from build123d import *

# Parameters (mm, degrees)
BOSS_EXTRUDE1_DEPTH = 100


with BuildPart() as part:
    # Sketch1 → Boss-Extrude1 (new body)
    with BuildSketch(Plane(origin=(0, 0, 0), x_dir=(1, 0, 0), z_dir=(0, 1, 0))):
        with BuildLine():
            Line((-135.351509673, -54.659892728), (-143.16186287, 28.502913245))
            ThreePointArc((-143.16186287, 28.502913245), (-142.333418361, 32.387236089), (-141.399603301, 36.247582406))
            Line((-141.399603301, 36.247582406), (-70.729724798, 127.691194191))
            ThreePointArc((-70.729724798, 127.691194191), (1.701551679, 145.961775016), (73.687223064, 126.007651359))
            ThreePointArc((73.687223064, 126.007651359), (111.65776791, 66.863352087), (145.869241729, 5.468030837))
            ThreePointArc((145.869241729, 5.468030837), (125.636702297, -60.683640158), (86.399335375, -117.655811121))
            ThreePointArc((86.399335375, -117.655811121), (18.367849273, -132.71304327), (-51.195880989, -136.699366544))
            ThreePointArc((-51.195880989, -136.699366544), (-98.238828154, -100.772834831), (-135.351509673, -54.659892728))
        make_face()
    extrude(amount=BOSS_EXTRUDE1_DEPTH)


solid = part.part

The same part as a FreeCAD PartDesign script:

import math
import FreeCAD as App
import Part
import Sketcher

V = App.Vector
Q = App.Units.Quantity

doc = App.newDocument("Part")
body = doc.addObject("PartDesign::Body", "Body")

# Sketch on XZ plane
sketch1 = body.newObject("Sketcher::SketchObject", "Sketch")
sketch1.AttachmentSupport = (doc.getObject("XZ_Plane"), [""])
sketch1.MapMode = "FlatFace"
sketch1.addGeometry([
    Part.LineSegment(V(-143.161863, -28.502913, 0), V(-135.35151, 54.659893, 0)),  # 0
    Part.ArcOfCircle(Part.Circle(V(73.687223, -75.587937, 0), V(0, 0, 1), 246.295938), math.radians(120.467193), math.radians(148.073797)),  # 1
    Part.ArcOfCircle(Part.Circle(V(-41.186102, -297.581542, 0), V(0, 0, 1), 434.396252), math.radians(72.91995), math.radians(91.320382)),  # 2
    Part.ArcOfCircle(Part.Circle(V(-78.530685, -37.931017, 0), V(0, 0, 1), 226.73591), math.radians(8.23163), math.radians(43.330278)),  # 3
    Part.ArcOfCircle(Part.Circle(V(-855.59788, 512.352552, 0), V(0, 0, 1), 1127.419422), math.radians(-34.486608), math.radians(-27.341766)),  # 4
    Part.ArcOfCircle(Part.Circle(V(0, 0, 0), V(0, 0, 1), 145.971693), math.radians(-118.982608), math.radians(-59.681599)),  # 5
    Part.LineSegment(V(-70.729725, -127.691194, 0), V(-141.399603, -36.247582, 0)),  # 6
    Part.ArcOfCircle(Part.Circle(V(0.000001, 0, 0), V(0, 0, 1), 145.971694), math.radians(-168.739895), math.radians(-165.621923)),  # 7
], False)
sketch1.addConstraint([
    Sketcher.Constraint("Coincident", 0, 2, 1, 2),
    Sketcher.Constraint("Coincident", 1, 1, 2, 2),
    Sketcher.Constraint("Coincident", 2, 1, 3, 2),
    Sketcher.Constraint("Coincident", 3, 1, 4, 2),
    Sketcher.Constraint("Coincident", 4, 1, 5, 2),
    Sketcher.Constraint("Coincident", 5, 1, 6, 1),
    Sketcher.Constraint("Coincident", 6, 2, 7, 2),
    Sketcher.Constraint("Coincident", 7, 1, 0, 1),
    Sketcher.Constraint("Coincident", 5, 3, -1, 1),
    Sketcher.Constraint("Coincident", 7, 3, -1, 1),
    Sketcher.Constraint("Equal", 5, 7),
    Sketcher.Constraint("Vertical", 1, 3, 4, 1),
    Sketcher.Constraint("Radius", 2, Q("434.396252 mm")),
    Sketcher.Constraint("Radius", 3, Q("226.73591 mm")),
    Sketcher.Constraint("Radius", 4, Q("1127.419422 mm")),
    Sketcher.Constraint("Radius", 1, Q("246.295938 mm")),
    Sketcher.Constraint("Radius", 5, Q("145.971693 mm")),
    Sketcher.Constraint("DistanceX", 2, 3, -1, 1, Q("41.186102 mm")),
    Sketcher.Constraint("Distance", 0, Q("83.528761 mm")),
    Sketcher.Constraint("Distance", 6, Q("115.568879 mm")),
    Sketcher.Constraint("DistanceX", 4, 3, -1, 1, Q("855.59788 mm")),
    Sketcher.Constraint("DistanceY", -1, 1, 4, 3, Q("512.352552 mm")),
    Sketcher.Constraint("DistanceX", 0, 2, -1, 1, Q("135.35151 mm")),
    Sketcher.Constraint("DistanceX", 1, 1, -1, 1, Q("51.195881 mm")),
    Sketcher.Constraint("DistanceY", -1, 1, 2, 1, Q("117.655811 mm")),
    Sketcher.Constraint("DistanceX", -1, 1, 3, 1, Q("145.869242 mm")),
    Sketcher.Constraint("DistanceX", 3, 3, 1, 3, Q("152.217908 mm")),
    Sketcher.Constraint("DistanceX", 3, 3, 5, 1, Q("7.800961 mm")),
])
pad1 = body.newObject("PartDesign::Pad", "Pad")
pad1.Profile = sketch1
pad1.Length = 100
pad1.Reversed = True

doc.recompute()
